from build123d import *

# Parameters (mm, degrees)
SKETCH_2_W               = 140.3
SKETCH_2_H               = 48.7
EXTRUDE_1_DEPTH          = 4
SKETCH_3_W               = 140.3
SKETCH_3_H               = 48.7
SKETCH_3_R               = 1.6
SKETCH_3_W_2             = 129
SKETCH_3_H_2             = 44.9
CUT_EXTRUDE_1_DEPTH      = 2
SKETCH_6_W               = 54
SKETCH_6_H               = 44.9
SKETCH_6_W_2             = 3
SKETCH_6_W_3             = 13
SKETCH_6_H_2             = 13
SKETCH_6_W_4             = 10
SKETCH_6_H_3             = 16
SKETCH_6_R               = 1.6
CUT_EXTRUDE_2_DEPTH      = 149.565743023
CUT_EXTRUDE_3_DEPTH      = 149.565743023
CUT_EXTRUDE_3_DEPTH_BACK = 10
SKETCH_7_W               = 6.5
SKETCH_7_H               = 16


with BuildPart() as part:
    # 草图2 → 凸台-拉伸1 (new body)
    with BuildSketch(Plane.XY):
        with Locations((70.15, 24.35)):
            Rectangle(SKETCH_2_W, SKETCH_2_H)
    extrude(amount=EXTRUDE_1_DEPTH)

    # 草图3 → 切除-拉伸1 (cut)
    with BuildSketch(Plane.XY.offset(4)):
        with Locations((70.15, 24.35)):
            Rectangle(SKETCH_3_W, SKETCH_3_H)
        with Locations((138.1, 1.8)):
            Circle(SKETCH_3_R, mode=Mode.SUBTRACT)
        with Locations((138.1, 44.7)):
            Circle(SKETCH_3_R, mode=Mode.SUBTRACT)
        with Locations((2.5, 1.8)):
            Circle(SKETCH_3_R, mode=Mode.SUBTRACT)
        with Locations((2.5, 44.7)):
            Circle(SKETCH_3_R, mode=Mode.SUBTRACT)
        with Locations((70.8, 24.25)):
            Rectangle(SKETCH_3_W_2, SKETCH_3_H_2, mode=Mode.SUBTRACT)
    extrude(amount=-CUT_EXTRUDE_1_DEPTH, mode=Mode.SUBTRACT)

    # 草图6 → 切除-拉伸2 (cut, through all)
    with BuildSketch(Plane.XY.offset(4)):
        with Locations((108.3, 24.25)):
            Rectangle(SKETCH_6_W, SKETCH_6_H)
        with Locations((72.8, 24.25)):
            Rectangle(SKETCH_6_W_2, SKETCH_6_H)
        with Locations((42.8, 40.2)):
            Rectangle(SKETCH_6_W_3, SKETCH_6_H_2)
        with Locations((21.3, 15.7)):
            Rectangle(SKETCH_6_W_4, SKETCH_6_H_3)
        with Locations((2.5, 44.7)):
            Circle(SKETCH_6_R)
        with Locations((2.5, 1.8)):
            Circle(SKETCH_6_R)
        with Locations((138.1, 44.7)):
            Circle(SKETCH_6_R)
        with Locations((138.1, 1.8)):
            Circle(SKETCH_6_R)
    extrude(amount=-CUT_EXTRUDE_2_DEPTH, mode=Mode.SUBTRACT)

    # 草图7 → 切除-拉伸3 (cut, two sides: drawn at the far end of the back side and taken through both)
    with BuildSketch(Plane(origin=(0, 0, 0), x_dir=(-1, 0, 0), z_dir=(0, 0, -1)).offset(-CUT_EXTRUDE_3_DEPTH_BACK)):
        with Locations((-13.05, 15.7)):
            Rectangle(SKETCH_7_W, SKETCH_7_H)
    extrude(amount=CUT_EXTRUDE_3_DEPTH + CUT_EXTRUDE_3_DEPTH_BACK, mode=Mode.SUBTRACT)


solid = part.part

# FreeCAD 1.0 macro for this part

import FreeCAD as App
import Part
import Sketcher
from FreeCAD import Vector

doc = App.newDocument("Part")
body = doc.addObject("PartDesign::Body", "Body")

# Sketch on XY plane
sketch1 = body.newObject("Sketcher::SketchObject", "Sketch")
sketch1.AttachmentSupport = (doc.getObject("XY_Plane"), [""])
sketch1.MapMode = "FlatFace"
sketch1.addGeometry([
    Part.LineSegment(Vector(0, 49, 0), Vector(0, 0, 0)),
    Part.LineSegment(Vector(0, 0, 0), Vector(140, 0, 0)),
    Part.LineSegment(Vector(140, 0, 0), Vector(140, 49, 0)),
    Part.LineSegment(Vector(140, 49, 0), Vector(0, 49, 0)),
], False)
sketch1.addConstraint([
    Sketcher.Constraint("Coincident", 0, 2, 1, 1),
    Sketcher.Constraint("Coincident", 1, 2, 2, 1),
    Sketcher.Constraint("Coincident", 2, 2, 3, 1),
    Sketcher.Constraint("Coincident", 3, 2, 0, 1),
    Sketcher.Constraint("Vertical", 0),
    Sketcher.Constraint("Horizontal", 1),
    Sketcher.Constraint("Vertical", 2),
    Sketcher.Constraint("Horizontal", 3),
    Sketcher.Constraint("Coincident", 0, 2, -1, 1),
    Sketcher.Constraint("DistanceX", 1, 1, 1, 2, 140.3),
    Sketcher.Constraint("DistanceY", 0, 2, 0, 1, 48.7),
])
pad1 = body.newObject("PartDesign::Pad", "Pad")
pad1.Profile = sketch1
pad1.Length = 4

# Sketch on XY plane
sketch2 = body.newObject("Sketcher::SketchObject", "Sketch001")
sketch2.AttachmentSupport = (doc.getObject("XY_Plane"), [""])
sketch2.MapMode = "FlatFace"
sketch2.AttachmentOffset = App.Placement(Vector(0, 0, 4), App.Rotation())
sketch2.addGeometry([
    Part.LineSegment(Vector(0, 48.7, 0), Vector(0, 0, 0)),  # 0
    Part.LineSegment(Vector(0, 0, 0), Vector(140.3, 0, 0)),  # 1
    Part.LineSegment(Vector(140.3, 0, 0), Vector(140.3, 48.7, 0)),  # 2
    Part.LineSegment(Vector(140.3, 48.7, 0), Vector(0, 48.7, 0)),  # 3
    Part.Circle(Vector(2.5, 1.8, 0), Vector(0, 0, 1), 1.6),  # 4
    Part.Circle(Vector(138.1, 1.8, 0), Vector(0, 0, 1), 1.6),  # 5
    Part.Circle(Vector(2.5, 44.7, 0), Vector(0, 0, 1), 1.6),  # 6
    Part.LineSegment(Vector(135.3, 1.8, 0), Vector(6.3, 1.8, 0)),  # 7
    Part.LineSegment(Vector(6.3, 1.8, 0), Vector(6.3, 46.7, 0)),  # 8
    Part.LineSegment(Vector(6.3, 46.7, 0), Vector(135.3, 46.7, 0)),  # 9
    Part.LineSegment(Vector(135.3, 46.7, 0), Vector(135.3, 1.8, 0)),  # 10
    Part.Circle(Vector(138.1, 44.7, 0), Vector(0, 0, 1), 1.6),  # 11
], False)
sketch2.addConstraint([
    Sketcher.Constraint("Coincident", 0, 2, 1, 1),
    Sketcher.Constraint("Coincident", 1, 2, 2, 1),
    Sketcher.Constraint("Coincident", 2, 2, 3, 1),
    Sketcher.Constraint("Coincident", 3, 2, 0, 1),
    Sketcher.Constraint("Coincident", 7, 2, 8, 1),
    Sketcher.Constraint("Coincident", 8, 2, 9, 1),
    Sketcher.Constraint("Coincident", 9, 2, 10, 1),
    Sketcher.Constraint("Coincident", 10, 2, 7, 1),
    Sketcher.Constraint("Vertical", 0),
    Sketcher.Constraint("Horizontal", 1),
    Sketcher.Constraint("Vertical", 2),
    Sketcher.Constraint("Horizontal", 3),
    Sketcher.Constraint("Horizontal", 7),
    Sketcher.Constraint("Vertical", 8),
    Sketcher.Constraint("Horizontal", 9),
    Sketcher.Constraint("Vertical", 10),
    Sketcher.Constraint("Coincident", 0, 2, -1, 1),
    Sketcher.Constraint("Equal", 4, 5),
    Sketcher.Constraint("Equal", 5, 6),
    Sketcher.Constraint("Equal", 6, 11),
    Sketcher.Constraint("Horizontal", 4, 3, 5, 3),
    Sketcher.Constraint("Horizontal", 6, 3, 11, 3),
    Sketcher.Constraint("Horizontal", 5, 3, 7, 2),
    Sketcher.Constraint("Vertical", 4, 3, 6, 3),
    Sketcher.Constraint("Vertical", 5, 3, 11, 3),
    Sketcher.Constraint("Diameter", 4, 3.2),
    Sketcher.Constraint("DistanceX", 7, 2, 7, 1, 129.0),
    Sketcher.Constraint("DistanceX", 1, 1, 1, 2, 140.3),
    Sketcher.Constraint("DistanceY", 0, 2, 0, 1, 48.7),
    Sketcher.Constraint("DistanceY", 8, 1, 8, 2, 44.9),
    Sketcher.Constraint("DistanceY", 11, 3, 2, 2, 4.0),
    Sketcher.Constraint("DistanceY", 6, 3, 8, 2, 2.0),
    Sketcher.Constraint("DistanceX", 9, 2, 2, 2, 5.0),
    Sketcher.Constraint("DistanceX", -1, 1, 4, 3, 2.5),
    Sketcher.Constraint("DistanceX", -1, 1, 5, 3, 138.1),
])
pocket1 = body.newObject("PartDesign::Pocket", "Pocket")
pocket1.Profile = sketch2
pocket1.Length = 2

# Sketch on XY plane
sketch3 = body.newObject("Sketcher::SketchObject", "Sketch002")
sketch3.AttachmentSupport = (doc.getObject("XY_Plane"), [""])
sketch3.MapMode = "FlatFace"
sketch3.AttachmentOffset = App.Placement(Vector(0, 0, 4), App.Rotation())
sketch3.addGeometry([
    Part.LineSegment(Vector(81.3, 46.7, 0), Vector(81.3, 1.8, 0)),  # 0
    Part.LineSegment(Vector(81.3, 1.8, 0), Vector(135.3, 1.8, 0)),  # 1
    Part.LineSegment(Vector(135.3, 1.8, 0), Vector(135.3, 46.7, 0)),  # 2
    Part.LineSegment(Vector(135.3, 46.7, 0), Vector(81.3, 46.7, 0)),  # 3
    Part.LineSegment(Vector(71.3, 46.7, 0), Vector(71.3, 1.8, 0)),  # 4
    Part.LineSegment(Vector(71.3, 1.8, 0), Vector(74.3, 1.8, 0)),  # 5
    Part.LineSegment(Vector(74.3, 1.8, 0), Vector(74.3, 46.7, 0)),  # 6
    Part.LineSegment(Vector(74.3, 46.7, 0), Vector(71.3, 46.7, 0)),  # 7
    Part.LineSegment(Vector(36.3, 46.7, 0), Vector(36.3, 33.7, 0)),  # 8
    Part.LineSegment(Vector(36.3, 33.7, 0), Vector(49.3, 33.7, 0)),  # 9
    Part.LineSegment(Vector(49.3, 33.7, 0), Vector(49.3, 46.7, 0)),  # 10
    Part.LineSegment(Vector(49.3, 46.7, 0), Vector(36.3, 46.7, 0)),  # 11
    Part.LineSegment(Vector(16.3, 23.7, 0), Vector(16.3, 7.7, 0)),  # 12
    Part.LineSegment(Vector(16.3, 7.7, 0), Vector(26.3, 7.7, 0)),  # 13
    Part.LineSegment(Vector(26.3, 7.7, 0), Vector(26.3, 23.7, 0)),  # 14
    Part.LineSegment(Vector(26.3, 23.7, 0), Vector(16.3, 23.7, 0)),  # 15
    Part.Circle(Vector(2.5, 44.7, 0), Vector(0, 0, 1), 1.6),  # 16
    Part.Circle(Vector(2.5, 1.8, 0), Vector(0, 0, 1), 1.6),  # 17
    Part.Circle(Vector(138.1, 44.7, 0), Vector(0, 0, 1), 1.6),  # 18
    Part.Circle(Vector(138.1, 1.8, 0), Vector(0, 0, 1), 1.6),  # 19
], False)
sketch3.addConstraint([
    Sketcher.Constraint("Coincident", 0, 2, 1, 1),
    Sketcher.Constraint("Coincident", 1, 2, 2, 1),
    Sketcher.Constraint("Coincident", 2, 2, 3, 1),
    Sketcher.Constraint("Coincident", 3, 2, 0, 1),
    Sketcher.Constraint("Coincident", 4, 2, 5, 1),
    Sketcher.Constraint("Coincident", 5, 2, 6, 1),
    Sketcher.Constraint("Coincident", 6, 2, 7, 1),
    Sketcher.Constraint("Coincident", 7, 2, 4, 1),
    Sketcher.Constraint("Coincident", 8, 2, 9, 1),
    Sketcher.Constraint("Coincident", 9, 2, 10, 1),
    Sketcher.Constraint("Coincident", 10, 2, 11, 1),
    Sketcher.Constraint("Coincident", 11, 2, 8, 1),
    Sketcher.Constraint("Coincident", 12, 2, 13, 1),
    Sketcher.Constraint("Coincident", 13, 2, 14, 1),
    Sketcher.Constraint("Coincident", 14, 2, 15, 1),
    Sketcher.Constraint("Coincident", 15, 2, 12, 1),
    Sketcher.Constraint("Vertical", 0),
    Sketcher.Constraint("Horizontal", 1),
    Sketcher.Constraint("Vertical", 2),
    Sketcher.Constraint("Horizontal", 3),
    Sketcher.Constraint("Vertical", 4),
    Sketcher.Constraint("Horizontal", 5),
    Sketcher.Constraint("Vertical", 6),
    Sketcher.Constraint("Horizontal", 7),
    Sketcher.Constraint("Vertical", 8),
    Sketcher.Constraint("Horizontal", 9),
    Sketcher.Constraint("Vertical", 10),
    Sketcher.Constraint("Horizontal", 11),
    Sketcher.Constraint("Vertical", 12),
    Sketcher.Constraint("Horizontal", 13),
    Sketcher.Constraint("Vertical", 14),
    Sketcher.Constraint("Horizontal", 15),
    Sketcher.Constraint("Equal", 16, 17),
    Sketcher.Constraint("Equal", 17, 18),
    Sketcher.Constraint("Equal", 18, 19),
    Sketcher.Constraint("Horizontal", 16, 3, 18, 3),
    Sketcher.Constraint("Horizontal", 17, 3, 19, 3),
    Sketcher.Constraint("Horizontal", 19, 3, 0, 2),
    Sketcher.Constraint("Horizontal", 1, 2, 4, 2),
    Sketcher.Constraint("Horizontal", 3, 2, 6, 2),
    Sketcher.Constraint("Horizontal", 7, 2, 10, 2),
    Sketcher.Constraint("Vertical", 16, 3, 17, 3),
    Sketcher.Constraint("Vertical", 18, 3, 19, 3),
    Sketcher.Constraint("Equal", 11, 8),
    Sketcher.Constraint("Diameter", 16, 3.2),
    Sketcher.Constraint("DistanceX", 1, 1, 1, 2, 54.0),
    Sketcher.Constraint("DistanceX", 5, 1, 5, 2, 3.0),
    Sketcher.Constraint("DistanceX", 9, 1, 9, 2, 13.0),
    Sketcher.Constraint("DistanceX", 13, 1, 13, 2, 10.0),
    Sketcher.Constraint("DistanceY", 12, 2, 12, 1, 16.0),
    Sketcher.Constraint("DistanceY", 0, 2, 0, 1, 44.9),
    Sketcher.Constraint("DistanceY", 18, 3, 2, 2, 2.0),
    Sketcher.Constraint("DistanceX", 4, 2, 0, 2, 10.0),
    Sketcher.Constraint("DistanceX", 8, 2, 7, 2, 35.0),
    Sketcher.Constraint("DistanceX", 12, 2, 8, 2, 20.0),
    Sketcher.Constraint("DistanceY", 12, 2, 8, 2, 26.0),
    Sketcher.Constraint("DistanceX", -1, 1, 16, 3, 2.5),
    Sketcher.Constraint("DistanceY", -1, 1, 16, 3, 44.7),
    Sketcher.Constraint("DistanceX", -1, 1, 18, 3, 138.1),
    Sketcher.Constraint("DistanceX", -1, 1, 0, 2, 81.3),
])
pocket2 = body.newObject("PartDesign::Pocket", "Pocket001")
pocket2.Profile = sketch3
pocket2.Type = "ThroughAll"

# Sketch on XY plane
sketch4 = body.newObject("Sketcher::SketchObject", "Sketch003")
sketch4.AttachmentSupport = (doc.getObject("XY_Plane"), [""])
sketch4.MapMode = "FlatFace"
sketch4.addGeometry([
    Part.LineSegment(Vector(16, 24, 0), Vector(16, 8, 0)),
    Part.LineSegment(Vector(16, 8, 0), Vector(10, 8, 0)),
    Part.LineSegment(Vector(10, 8, 0), Vector(10, 24, 0)),
    Part.LineSegment(Vector(10, 24, 0), Vector(16, 24, 0)),
], False)
sketch4.addConstraint([
    Sketcher.Constraint("Coincident", 0, 2, 1, 1),
    Sketcher.Constraint("Coincident", 1, 2, 2, 1),
    Sketcher.Constraint("Coincident", 2, 2, 3, 1),
    Sketcher.Constraint("Coincident", 3, 2, 0, 1),
    Sketcher.Constraint("Vertical", 0),
    Sketcher.Constraint("Horizontal", 1),
    Sketcher.Constraint("Vertical", 2),
    Sketcher.Constraint("Horizontal", 3),
    Sketcher.Constraint("DistanceY", 0, 2, 0, 1, 16.0),
    Sketcher.Constraint("DistanceX", 1, 2, 1, 1, 6.5),
    Sketcher.Constraint("DistanceX", -1, 1, 0, 2, 16.3),
    Sketcher.Constraint("DistanceY", -1, 1, 0, 2, 7.7),
])
pocket3 = body.newObject("PartDesign::Pocket", "Pocket002")
pocket3.Profile = sketch4
pocket3.Type = "ThroughAll"
pocket3.Midplane = True

doc.recompute()
